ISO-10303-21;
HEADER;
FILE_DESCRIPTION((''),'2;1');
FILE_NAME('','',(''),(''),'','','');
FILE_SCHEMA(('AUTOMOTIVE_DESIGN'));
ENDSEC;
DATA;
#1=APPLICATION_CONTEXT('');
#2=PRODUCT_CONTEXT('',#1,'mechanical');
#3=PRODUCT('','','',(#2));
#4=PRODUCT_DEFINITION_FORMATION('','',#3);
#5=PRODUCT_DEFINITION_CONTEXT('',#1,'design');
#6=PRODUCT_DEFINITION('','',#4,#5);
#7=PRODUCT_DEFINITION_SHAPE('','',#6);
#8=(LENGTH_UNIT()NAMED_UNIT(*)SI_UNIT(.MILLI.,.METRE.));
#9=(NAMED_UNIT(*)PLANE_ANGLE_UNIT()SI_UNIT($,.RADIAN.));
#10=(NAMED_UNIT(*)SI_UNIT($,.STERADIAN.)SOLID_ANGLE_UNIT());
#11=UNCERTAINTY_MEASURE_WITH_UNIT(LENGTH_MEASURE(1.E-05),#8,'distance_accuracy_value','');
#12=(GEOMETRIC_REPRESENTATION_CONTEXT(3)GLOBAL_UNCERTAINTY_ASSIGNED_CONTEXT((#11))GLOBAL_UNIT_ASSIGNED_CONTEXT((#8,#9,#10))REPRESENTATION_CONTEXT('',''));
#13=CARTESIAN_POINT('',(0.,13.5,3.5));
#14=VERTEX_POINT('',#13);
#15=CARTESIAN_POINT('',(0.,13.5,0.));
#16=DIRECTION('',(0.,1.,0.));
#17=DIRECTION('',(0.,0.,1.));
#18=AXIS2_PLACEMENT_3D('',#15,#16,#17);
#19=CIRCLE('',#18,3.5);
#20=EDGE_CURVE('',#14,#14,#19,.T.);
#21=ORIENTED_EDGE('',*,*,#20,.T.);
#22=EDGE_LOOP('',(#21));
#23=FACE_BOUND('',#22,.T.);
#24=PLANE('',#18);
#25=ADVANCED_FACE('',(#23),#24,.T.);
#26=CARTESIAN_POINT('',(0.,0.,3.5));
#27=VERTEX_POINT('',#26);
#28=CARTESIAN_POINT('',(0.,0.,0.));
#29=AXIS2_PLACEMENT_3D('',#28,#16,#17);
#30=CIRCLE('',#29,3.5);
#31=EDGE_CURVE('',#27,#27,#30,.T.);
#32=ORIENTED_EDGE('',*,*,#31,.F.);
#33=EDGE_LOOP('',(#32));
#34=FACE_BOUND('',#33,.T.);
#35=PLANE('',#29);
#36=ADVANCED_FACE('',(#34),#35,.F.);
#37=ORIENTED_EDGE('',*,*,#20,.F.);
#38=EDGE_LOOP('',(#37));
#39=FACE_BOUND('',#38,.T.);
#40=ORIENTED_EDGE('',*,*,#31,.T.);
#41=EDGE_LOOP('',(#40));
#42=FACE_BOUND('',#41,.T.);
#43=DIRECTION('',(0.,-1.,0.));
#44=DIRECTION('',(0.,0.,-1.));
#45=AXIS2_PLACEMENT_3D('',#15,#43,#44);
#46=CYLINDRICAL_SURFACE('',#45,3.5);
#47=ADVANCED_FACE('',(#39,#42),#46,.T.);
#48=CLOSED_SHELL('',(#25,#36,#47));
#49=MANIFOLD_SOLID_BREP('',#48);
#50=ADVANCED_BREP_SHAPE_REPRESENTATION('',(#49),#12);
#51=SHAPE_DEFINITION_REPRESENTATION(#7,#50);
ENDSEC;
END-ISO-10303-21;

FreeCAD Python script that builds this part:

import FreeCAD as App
import Part
import Sketcher

V = App.Vector
Q = App.Units.Quantity

doc = App.newDocument("Part")
body = doc.addObject("PartDesign::Body", "Body")

# Sketch on XZ plane
sketch1 = doc.addObject("Sketcher::SketchObject", "Sketch")
body.addObject(sketch1)
sketch1.AttachmentSupport = (doc.XZ_Plane, [""])
sketch1.MapMode = "FlatFace"
sketch1.addGeometry(Part.Circle(V(0, 0, 0), V(0, 0, 1), 3.5), False)
sketch1.addConstraint(Sketcher.Constraint("Coincident", 0, 3, -1, 1))
sketch1.addConstraint(Sketcher.Constraint("Diameter", 0, Q("7 mm")))
pad1 = doc.addObject("PartDesign::Pad", "Pad")
body.addObject(pad1)
pad1.Profile = sketch1
pad1.Length = 13.5
pad1.Reversed = True

doc.recompute()
